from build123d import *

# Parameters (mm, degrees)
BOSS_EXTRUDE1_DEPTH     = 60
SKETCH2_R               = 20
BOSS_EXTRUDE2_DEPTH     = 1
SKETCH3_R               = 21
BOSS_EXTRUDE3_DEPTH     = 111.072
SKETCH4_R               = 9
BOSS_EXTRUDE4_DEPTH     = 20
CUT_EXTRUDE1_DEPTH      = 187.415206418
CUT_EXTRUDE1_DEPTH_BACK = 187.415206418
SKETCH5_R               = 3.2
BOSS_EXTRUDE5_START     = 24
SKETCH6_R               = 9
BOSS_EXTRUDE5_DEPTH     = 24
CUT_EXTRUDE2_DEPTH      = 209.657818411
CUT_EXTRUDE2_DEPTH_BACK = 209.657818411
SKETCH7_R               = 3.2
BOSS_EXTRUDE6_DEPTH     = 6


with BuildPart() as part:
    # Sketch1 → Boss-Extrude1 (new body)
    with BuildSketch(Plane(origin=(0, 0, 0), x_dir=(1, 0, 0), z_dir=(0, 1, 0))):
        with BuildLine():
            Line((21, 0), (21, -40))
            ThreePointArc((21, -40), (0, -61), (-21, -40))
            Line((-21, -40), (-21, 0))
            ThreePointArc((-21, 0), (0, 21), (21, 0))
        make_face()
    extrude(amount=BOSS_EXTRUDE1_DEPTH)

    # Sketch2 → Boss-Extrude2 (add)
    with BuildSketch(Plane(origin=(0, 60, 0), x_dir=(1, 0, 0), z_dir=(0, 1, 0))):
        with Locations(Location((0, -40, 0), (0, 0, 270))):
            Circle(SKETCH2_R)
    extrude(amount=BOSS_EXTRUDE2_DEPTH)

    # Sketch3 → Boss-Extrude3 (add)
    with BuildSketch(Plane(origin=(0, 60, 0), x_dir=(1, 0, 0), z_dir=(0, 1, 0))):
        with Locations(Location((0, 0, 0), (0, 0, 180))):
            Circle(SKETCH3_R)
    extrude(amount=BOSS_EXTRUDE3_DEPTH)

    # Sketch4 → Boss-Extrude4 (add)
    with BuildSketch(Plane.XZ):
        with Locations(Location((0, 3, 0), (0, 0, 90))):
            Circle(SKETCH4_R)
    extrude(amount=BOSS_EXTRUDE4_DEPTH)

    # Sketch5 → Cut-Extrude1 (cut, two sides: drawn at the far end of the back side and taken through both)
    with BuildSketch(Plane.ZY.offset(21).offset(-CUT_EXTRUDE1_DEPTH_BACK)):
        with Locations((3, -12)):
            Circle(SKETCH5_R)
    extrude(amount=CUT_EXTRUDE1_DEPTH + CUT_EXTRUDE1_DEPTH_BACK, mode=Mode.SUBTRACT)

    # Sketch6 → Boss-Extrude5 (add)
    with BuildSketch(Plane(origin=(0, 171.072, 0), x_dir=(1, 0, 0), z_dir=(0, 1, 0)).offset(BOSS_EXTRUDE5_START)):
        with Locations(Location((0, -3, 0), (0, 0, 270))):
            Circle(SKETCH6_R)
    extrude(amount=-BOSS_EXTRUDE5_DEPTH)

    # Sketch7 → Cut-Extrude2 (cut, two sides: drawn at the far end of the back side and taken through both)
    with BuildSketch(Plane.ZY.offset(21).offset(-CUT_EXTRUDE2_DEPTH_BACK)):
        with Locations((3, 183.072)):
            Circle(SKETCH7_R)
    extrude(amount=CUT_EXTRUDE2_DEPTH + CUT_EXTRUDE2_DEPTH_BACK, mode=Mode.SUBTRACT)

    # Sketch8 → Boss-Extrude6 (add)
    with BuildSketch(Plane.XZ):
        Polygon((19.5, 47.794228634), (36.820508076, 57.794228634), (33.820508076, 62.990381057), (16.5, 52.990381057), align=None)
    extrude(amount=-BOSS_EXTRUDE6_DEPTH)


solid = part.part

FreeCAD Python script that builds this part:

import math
import FreeCAD as App
import Part
import Sketcher

V = App.Vector
Q = App.Units.Quantity


def add_polygon(sketch, points):
    """Adds a closed chain of lines whose ends are joined by coincident constraints."""
    first, n = sketch.GeometryCount, len(points)
    for a, b in zip(points, points[1:] + points[:1]):
        sketch.addGeometry(Part.LineSegment(App.Vector(*a, 0), App.Vector(*b, 0)), False)
    for i in range(n):
        sketch.addConstraint(Sketcher.Constraint("Coincident", first + i, 2, first + (i + 1) % n, 1))

doc = App.newDocument("Part")
body = doc.addObject("PartDesign::Body", "Body")

sketch1 = doc.addObject("Sketcher::SketchObject", "Sketch")
body.addObject(sketch1)
sketch1.AttachmentSupport = (doc.XZ_Plane, [""])
sketch1.MapMode = "FlatFace"
sketch1.addGeometry([
    Part.LineSegment(V(21, 40, 0), V(21, 0, 0)),
    Part.ArcOfCircle(Part.Circle(V(0, 0, 0), V(0, 0, 1), 21), math.radians(180), math.radians(360)),
    Part.LineSegment(V(-21, 0, 0), V(-21, 40, 0)),
    Part.ArcOfCircle(Part.Circle(V(0, 40, 0), V(0, 0, 1), 21), math.radians(0), math.radians(180)),
], False)
sketch1.addConstraint([
    Sketcher.Constraint("Tangent", 0, 2, 1, 2),
    Sketcher.Constraint("Tangent", 1, 1, 2, 1),
    Sketcher.Constraint("Tangent", 2, 2, 3, 2),
    Sketcher.Constraint("Tangent", 3, 1, 0, 1),
    Sketcher.Constraint("Vertical", 0),
    Sketcher.Constraint("Vertical", 2),
    Sketcher.Constraint("Coincident", 1, 3, -1, 1),
    Sketcher.Constraint("Radius", 1, 21.0),
    Sketcher.Constraint("DistanceY", 0, 2, 0, 1, 40.0),
])
pad1 = doc.addObject("PartDesign::Pad", "Pad")
body.addObject(pad1)
pad1.Profile = sketch1
pad1.Length = 60
pad1.Reversed = True

sketch2 = doc.addObject("Sketcher::SketchObject", "Sketch001")
body.addObject(sketch2)
sketch2.AttachmentSupport = (doc.XZ_Plane, [""])
sketch2.MapMode = "FlatFace"
sketch2.AttachmentOffset = App.Placement(V(0, 0, -60), App.Rotation())
sketch2.addGeometry(Part.Circle(V(0, 40, 0), V(0, 0, 1), 20), False)
sketch2.addConstraint([
    Sketcher.Constraint("PointOnObject", 0, 3, -2),
    Sketcher.Constraint("Diameter", 0, 40.0),
    Sketcher.Constraint("DistanceY", -1, 1, 0, 3, 40.0),
])
pad2 = doc.addObject("PartDesign::Pad", "Pad001")
body.addObject(pad2)
pad2.Profile = sketch2
pad2.Length = 1
pad2.Reversed = True

sketch3 = doc.addObject("Sketcher::SketchObject", "Sketch002")
body.addObject(sketch3)
sketch3.AttachmentSupport = (doc.XZ_Plane, [""])
sketch3.MapMode = "FlatFace"
sketch3.AttachmentOffset = App.Placement(V(0, 0, -60), App.Rotation())
sketch3.addGeometry(Part.Circle(V(0, 0, 0), V(0, 0, 1), 21), False)
sketch3.addConstraint([
    Sketcher.Constraint("Coincident", 0, 3, -1, 1),
    Sketcher.Constraint("Diameter", 0, 42.0),
])
pad3 = doc.addObject("PartDesign::Pad", "Pad002")
body.addObject(pad3)
pad3.Profile = sketch3
pad3.Length = 111.072
pad3.Reversed = True

sketch4 = doc.addObject("Sketcher::SketchObject", "Sketch003")
body.addObject(sketch4)
sketch4.AttachmentSupport = (doc.XZ_Plane, [""])
sketch4.MapMode = "FlatFace"
sketch4.addGeometry(Part.Circle(V(0, 3, 0), V(0, 0, 1), 9), False)
sketch4.addConstraint([
    Sketcher.Constraint("PointOnObject", 0, 3, -2),
    Sketcher.Constraint("Diameter", 0, 18.0),
    Sketcher.Constraint("DistanceY", -1, 1, 0, 3, 3.0),
])
pad4 = doc.addObject("PartDesign::Pad", "Pad003")
body.addObject(pad4)
pad4.Profile = sketch4
pad4.Length = 20

sketch5 = doc.addObject("Sketcher::SketchObject", "Sketch004")
body.addObject(sketch5)
sketch5.AttachmentSupport = (doc.YZ_Plane, [""])
sketch5.MapMode = "FlatFace"
sketch5.AttachmentOffset = App.Placement(V(0, 0, -21), App.Rotation())
sketch5.addGeometry(Part.Circle(V(-12, 3, 0), V(0, 0, 1), 3.2), False)
sketch5.addConstraint([
    Sketcher.Constraint("Diameter", 0, 6.4),
    Sketcher.Constraint("DistanceX", 0, 3, -1, 1, 12.0),
    Sketcher.Constraint("DistanceY", -1, 1, 0, 3, 3.0),
])
pocket1 = doc.addObject("PartDesign::Pocket", "Pocket")
body.addObject(pocket1)
pocket1.Profile = sketch5
pocket1.Type = "ThroughAll"
pocket1.Midplane = True

sketch6 = doc.addObject("Sketcher::SketchObject", "Sketch005")
body.addObject(sketch6)
sketch6.AttachmentSupport = (doc.XZ_Plane, [""])
sketch6.MapMode = "FlatFace"
sketch6.AttachmentOffset = App.Placement(V(0, 0, -195.072), App.Rotation())
sketch6.addGeometry(Part.Circle(V(0, 3, 0), V(0, 0, 1), 9), False)
sketch6.addConstraint([
    Sketcher.Constraint("PointOnObject", 0, 3, -2),
    Sketcher.Constraint("Diameter", 0, 18.0),
    Sketcher.Constraint("DistanceY", -1, 1, 0, 3, 3.0),
])
pad5 = doc.addObject("PartDesign::Pad", "Pad004")
body.addObject(pad5)
pad5.Profile = sketch6
pad5.Length = 24

sketch7 = doc.addObject("Sketcher::SketchObject", "Sketch006")
body.addObject(sketch7)
sketch7.AttachmentSupport = (doc.YZ_Plane, [""])
sketch7.MapMode = "FlatFace"
sketch7.AttachmentOffset = App.Placement(V(0, 0, -21), App.Rotation())
sketch7.addGeometry(Part.Circle(V(183.072, 3, 0), V(0, 0, 1), 3.2), False)
sketch7.addConstraint([
    Sketcher.Constraint("Diameter", 0, 6.4),
    Sketcher.Constraint("DistanceY", -1, 1, 0, 3, 3.0),
    Sketcher.Constraint("DistanceX", -1, 1, 0, 3, 183.072),
])
pocket2 = doc.addObject("PartDesign::Pocket", "Pocket001")
body.addObject(pocket2)
pocket2.Profile = sketch7
pocket2.Type = "ThroughAll"
pocket2.Midplane = True

sketch8 = doc.addObject("Sketcher::SketchObject", "Sketch007")
body.addObject(sketch8)
sketch8.AttachmentSupport = (doc.XZ_Plane, [""])
sketch8.MapMode = "FlatFace"
add_polygon(sketch8, [(19.5, 47.794229), (36.820508, 57.794229), (33.820508, 62.990381), (16.5, 52.990381)])
sketch8.addConstraint([
    Sketcher.Constraint("Perpendicular", 0, 1),
    Sketcher.Constraint("Perpendicular", 1, 2),
    Sketcher.Constraint("Perpendicular", 2, 3),
    Sketcher.Constraint("Angle", 0, Q("30 deg")),
    Sketcher.Constraint("Distance", 0, 20.0),
    Sketcher.Constraint("Distance", 1, 6.0),
    Sketcher.Constraint("DistanceX", -1, 1, 2, 2, 16.5),
    Sketcher.Constraint("DistanceY", -1, 1, 0, 2, 57.794229),
])
pad6 = doc.addObject("PartDesign::Pad", "Pad005")
body.addObject(pad6)
pad6.Profile = sketch8
pad6.Length = 6
pad6.Reversed = True

doc.recompute()
